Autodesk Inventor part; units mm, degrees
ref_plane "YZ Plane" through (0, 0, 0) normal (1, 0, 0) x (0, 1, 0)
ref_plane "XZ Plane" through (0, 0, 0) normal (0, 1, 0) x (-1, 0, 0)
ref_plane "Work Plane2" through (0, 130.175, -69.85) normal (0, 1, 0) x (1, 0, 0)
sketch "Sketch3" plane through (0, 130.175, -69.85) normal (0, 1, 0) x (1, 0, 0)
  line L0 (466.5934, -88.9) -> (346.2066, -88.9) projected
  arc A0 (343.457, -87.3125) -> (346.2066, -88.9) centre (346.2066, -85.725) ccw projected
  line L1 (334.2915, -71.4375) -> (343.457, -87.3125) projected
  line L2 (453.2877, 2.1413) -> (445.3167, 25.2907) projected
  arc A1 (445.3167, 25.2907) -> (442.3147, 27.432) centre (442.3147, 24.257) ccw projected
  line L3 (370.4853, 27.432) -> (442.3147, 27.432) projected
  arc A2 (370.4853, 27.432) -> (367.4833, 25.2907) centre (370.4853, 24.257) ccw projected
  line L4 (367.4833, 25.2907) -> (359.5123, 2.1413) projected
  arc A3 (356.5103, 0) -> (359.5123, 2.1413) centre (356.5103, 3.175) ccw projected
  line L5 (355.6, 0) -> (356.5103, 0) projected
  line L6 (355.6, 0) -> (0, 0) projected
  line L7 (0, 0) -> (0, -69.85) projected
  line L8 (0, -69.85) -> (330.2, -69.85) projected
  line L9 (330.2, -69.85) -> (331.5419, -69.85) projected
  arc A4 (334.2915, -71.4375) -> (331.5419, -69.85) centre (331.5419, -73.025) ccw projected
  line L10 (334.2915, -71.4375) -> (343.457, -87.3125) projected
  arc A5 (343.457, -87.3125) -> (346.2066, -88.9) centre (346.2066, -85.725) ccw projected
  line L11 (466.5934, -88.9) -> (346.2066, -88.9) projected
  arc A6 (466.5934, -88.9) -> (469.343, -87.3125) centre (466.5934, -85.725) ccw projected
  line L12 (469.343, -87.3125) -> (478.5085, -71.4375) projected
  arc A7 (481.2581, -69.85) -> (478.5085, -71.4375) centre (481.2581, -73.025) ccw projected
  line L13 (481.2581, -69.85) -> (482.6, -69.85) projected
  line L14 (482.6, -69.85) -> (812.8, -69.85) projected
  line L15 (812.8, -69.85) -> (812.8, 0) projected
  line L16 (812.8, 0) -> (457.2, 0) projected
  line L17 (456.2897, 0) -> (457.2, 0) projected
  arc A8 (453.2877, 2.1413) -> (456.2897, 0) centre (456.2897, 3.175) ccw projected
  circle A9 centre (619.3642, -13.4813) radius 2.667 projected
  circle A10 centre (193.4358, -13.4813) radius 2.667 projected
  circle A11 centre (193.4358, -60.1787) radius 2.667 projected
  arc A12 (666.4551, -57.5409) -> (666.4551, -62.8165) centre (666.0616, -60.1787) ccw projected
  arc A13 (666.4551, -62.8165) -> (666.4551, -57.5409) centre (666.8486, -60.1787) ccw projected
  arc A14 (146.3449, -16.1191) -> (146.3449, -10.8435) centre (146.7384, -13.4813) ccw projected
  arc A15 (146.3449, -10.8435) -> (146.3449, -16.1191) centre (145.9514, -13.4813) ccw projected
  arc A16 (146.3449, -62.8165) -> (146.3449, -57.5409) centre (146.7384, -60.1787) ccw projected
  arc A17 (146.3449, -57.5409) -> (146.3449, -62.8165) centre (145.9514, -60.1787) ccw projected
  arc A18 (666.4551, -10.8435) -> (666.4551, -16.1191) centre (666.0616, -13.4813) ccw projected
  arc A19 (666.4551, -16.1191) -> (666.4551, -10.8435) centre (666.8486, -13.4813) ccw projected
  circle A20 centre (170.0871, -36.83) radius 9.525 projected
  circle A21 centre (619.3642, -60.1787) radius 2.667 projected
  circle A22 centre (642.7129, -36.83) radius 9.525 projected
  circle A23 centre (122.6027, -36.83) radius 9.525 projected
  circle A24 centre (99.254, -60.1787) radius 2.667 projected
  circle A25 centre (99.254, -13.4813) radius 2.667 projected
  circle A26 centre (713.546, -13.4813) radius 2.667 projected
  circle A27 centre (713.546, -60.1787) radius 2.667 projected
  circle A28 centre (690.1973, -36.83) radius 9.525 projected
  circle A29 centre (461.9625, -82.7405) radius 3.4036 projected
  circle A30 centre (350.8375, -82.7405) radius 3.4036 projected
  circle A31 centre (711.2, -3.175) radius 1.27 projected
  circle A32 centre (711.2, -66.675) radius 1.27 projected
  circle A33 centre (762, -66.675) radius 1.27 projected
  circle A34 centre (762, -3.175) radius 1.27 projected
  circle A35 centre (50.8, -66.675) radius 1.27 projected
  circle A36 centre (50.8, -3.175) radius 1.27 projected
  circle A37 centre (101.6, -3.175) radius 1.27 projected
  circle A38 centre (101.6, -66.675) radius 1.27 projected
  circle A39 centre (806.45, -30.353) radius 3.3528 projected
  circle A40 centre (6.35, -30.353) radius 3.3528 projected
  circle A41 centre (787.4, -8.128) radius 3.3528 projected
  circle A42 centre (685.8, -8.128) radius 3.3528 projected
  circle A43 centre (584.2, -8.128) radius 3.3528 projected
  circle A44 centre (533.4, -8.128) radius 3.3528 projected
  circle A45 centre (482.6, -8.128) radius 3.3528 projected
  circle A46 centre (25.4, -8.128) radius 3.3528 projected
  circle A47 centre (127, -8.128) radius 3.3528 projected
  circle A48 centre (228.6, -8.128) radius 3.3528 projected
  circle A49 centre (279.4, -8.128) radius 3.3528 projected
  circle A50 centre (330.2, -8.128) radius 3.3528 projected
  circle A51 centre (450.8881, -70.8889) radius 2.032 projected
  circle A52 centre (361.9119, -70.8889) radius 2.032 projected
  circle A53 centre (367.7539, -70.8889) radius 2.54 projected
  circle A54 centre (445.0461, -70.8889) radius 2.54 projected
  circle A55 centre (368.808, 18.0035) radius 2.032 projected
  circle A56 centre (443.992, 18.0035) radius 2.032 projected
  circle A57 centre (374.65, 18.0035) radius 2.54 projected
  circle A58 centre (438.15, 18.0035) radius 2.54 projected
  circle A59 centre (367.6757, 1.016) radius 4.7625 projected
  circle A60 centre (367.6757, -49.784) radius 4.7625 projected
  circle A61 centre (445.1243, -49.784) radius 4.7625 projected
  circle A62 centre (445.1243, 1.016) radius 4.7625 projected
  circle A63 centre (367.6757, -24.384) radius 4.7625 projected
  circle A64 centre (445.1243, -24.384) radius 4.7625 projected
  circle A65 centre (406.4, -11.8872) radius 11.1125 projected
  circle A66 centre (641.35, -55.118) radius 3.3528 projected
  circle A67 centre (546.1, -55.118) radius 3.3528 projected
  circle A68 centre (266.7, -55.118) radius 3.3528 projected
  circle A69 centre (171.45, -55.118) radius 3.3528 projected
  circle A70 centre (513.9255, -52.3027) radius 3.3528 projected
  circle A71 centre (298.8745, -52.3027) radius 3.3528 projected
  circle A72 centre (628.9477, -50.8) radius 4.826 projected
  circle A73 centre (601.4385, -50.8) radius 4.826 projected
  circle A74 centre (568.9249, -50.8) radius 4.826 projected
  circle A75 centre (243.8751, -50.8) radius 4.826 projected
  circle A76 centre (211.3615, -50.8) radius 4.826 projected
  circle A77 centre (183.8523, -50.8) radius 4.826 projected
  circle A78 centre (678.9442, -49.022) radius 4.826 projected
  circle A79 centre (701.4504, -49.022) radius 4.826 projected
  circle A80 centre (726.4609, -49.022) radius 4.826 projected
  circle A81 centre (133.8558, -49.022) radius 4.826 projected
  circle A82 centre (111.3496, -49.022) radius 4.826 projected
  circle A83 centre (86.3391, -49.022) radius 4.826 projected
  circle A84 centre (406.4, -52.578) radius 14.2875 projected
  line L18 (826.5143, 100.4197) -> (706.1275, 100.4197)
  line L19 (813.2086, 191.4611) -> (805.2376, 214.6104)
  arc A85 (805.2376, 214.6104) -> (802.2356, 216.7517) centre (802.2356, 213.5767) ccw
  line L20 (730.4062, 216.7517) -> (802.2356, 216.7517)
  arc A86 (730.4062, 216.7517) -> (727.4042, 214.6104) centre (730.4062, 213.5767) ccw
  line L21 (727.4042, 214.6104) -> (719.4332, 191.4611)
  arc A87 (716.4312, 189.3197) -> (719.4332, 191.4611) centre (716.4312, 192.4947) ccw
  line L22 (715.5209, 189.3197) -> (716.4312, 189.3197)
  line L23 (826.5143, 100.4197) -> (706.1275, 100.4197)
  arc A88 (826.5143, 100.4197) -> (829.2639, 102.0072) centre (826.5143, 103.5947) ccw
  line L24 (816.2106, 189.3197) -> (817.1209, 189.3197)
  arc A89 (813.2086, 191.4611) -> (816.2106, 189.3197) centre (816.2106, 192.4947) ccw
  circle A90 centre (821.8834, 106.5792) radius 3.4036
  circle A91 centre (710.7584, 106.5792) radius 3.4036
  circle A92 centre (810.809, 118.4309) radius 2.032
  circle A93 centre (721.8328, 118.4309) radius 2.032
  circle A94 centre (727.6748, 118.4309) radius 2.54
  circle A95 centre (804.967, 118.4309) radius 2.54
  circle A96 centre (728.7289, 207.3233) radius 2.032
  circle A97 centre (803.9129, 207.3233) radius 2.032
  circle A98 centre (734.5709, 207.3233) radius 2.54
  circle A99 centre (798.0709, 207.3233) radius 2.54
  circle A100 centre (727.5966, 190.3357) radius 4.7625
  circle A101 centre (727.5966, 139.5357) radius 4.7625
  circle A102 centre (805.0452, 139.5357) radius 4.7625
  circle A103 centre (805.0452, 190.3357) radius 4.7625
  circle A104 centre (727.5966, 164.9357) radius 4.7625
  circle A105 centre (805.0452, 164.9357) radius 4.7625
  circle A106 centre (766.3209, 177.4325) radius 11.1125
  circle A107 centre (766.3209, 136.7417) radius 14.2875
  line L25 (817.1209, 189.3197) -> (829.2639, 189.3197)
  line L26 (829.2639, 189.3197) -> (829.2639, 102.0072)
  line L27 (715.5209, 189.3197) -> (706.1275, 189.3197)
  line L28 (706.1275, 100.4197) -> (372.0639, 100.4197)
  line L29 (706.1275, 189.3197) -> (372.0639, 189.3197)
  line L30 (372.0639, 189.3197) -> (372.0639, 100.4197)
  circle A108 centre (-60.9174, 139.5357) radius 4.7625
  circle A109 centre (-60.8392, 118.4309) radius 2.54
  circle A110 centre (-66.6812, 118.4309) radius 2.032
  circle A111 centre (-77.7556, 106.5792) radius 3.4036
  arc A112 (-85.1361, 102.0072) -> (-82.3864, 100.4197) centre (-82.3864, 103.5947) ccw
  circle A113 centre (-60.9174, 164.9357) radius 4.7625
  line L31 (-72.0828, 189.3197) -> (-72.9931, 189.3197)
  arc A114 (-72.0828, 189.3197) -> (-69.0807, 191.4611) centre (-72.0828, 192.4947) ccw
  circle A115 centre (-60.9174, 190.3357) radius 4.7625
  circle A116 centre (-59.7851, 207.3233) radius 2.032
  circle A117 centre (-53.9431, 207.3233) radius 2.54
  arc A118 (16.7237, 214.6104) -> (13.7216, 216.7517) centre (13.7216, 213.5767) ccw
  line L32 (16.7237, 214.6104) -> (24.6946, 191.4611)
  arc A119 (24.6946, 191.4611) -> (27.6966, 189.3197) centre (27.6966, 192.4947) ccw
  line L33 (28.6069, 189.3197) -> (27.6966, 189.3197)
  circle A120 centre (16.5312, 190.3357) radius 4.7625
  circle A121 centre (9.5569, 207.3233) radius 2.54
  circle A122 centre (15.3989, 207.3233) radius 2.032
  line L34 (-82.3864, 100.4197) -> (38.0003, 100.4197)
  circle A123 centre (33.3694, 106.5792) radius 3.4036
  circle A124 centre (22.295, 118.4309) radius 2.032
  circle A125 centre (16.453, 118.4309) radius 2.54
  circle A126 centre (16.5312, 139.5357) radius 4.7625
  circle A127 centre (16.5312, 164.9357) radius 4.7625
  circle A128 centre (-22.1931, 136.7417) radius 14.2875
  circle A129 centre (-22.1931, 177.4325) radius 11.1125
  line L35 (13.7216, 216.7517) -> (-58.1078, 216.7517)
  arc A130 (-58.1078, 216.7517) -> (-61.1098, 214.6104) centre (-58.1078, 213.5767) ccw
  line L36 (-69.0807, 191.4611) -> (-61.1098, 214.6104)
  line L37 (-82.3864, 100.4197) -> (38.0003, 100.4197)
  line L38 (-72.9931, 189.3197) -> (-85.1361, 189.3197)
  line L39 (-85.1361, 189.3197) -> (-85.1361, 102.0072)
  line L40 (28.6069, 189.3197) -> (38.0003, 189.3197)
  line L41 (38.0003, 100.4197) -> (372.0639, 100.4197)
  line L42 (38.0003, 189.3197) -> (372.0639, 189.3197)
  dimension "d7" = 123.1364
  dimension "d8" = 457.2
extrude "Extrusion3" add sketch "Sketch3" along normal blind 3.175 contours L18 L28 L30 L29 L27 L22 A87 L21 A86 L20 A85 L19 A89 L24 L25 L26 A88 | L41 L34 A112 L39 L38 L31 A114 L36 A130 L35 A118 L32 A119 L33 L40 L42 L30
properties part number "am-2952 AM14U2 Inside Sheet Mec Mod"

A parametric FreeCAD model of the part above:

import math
import FreeCAD as App
import Part
import Sketcher

V = App.Vector
Q = App.Units.Quantity

doc = App.newDocument("Part")
params = doc.addObject("Spreadsheet::Sheet", "Params")
for row, (alias, value) in enumerate([
    ("sketch1_diameter", "0.2 in"),
    ("sketch1_diameter2", "0.16 in"),
    ("sketch1_diameter3", "0.268 in"),
    ("sketch1_diameter4", "0.375 in"),
    ("sketch1_diameter5", "1.125 in"),
    ("pad1_length", "0.125 in"),
], start=1):
    params.set(f"A{row}", alias)
    params.set(f"B{row}", "=" + value)
    params.setAlias(f"B{row}", alias)

body = doc.addObject("PartDesign::Body", "Body")

sketch1 = body.newObject("Sketcher::SketchObject", "Sketch")
sketch1.AttachmentSupport = (doc.getObject("XZ_Plane"), [""])
sketch1.MapMode = "FlatFace"
sketch1.AttachmentOffset = App.Placement(V(0, 0, -5.125 * 25.4), App.Rotation())
sketch1.addGeometry([
    Part.ArcOfCircle(Part.Circle(V(826.5143, -173.4447, 0), V(0, 0, 1), 3.175), math.radians(30.000277), math.radians(90)),
    Part.LineSegment(V(829.2639, -171.8572, 0), V(829.2639, -259.1697, 0)),
    Part.LineSegment(V(829.2639, -259.1697, 0), V(816.2106, -259.1697, 0)),
    Part.ArcOfCircle(Part.Circle(V(816.2106, -262.3447, 0), V(0, 0, 1), 3.174954), math.radians(90), math.radians(161.00122)),
    Part.LineSegment(V(813.2086, -261.3111, 0), V(805.2376, -284.4604, 0)),
    Part.ArcOfCircle(Part.Circle(V(802.2356, -283.4267, 0), V(0, 0, 1), 3.174987), math.radians(-90), math.radians(-19.000486)),
    Part.LineSegment(V(802.2356, -286.6017, 0), V(730.4062, -286.6017, 0)),
    Part.ArcOfCircle(Part.Circle(V(730.4062, -283.4267, 0), V(0, 0, 1), 3.175), math.radians(-160.999514), math.radians(-90)),
    Part.LineSegment(V(727.4042, -284.4604, 0), V(719.4332, -261.3111, 0)),
    Part.ArcOfCircle(Part.Circle(V(716.4312, -262.3447, 0), V(0, 0, 1), 3.175), math.radians(18.99878), math.radians(90)),
    Part.LineSegment(V(716.4312, -259.1697, 0), V(27.6966, -259.1697, 0)),
    Part.ArcOfCircle(Part.Circle(V(27.6966, -262.3447, 0), V(0, 0, 1), 3.174954), math.radians(90), math.radians(161.00122)),
    Part.LineSegment(V(24.6946, -261.3111, 0), V(16.7237, -284.4604, 0)),
    Part.ArcOfCircle(Part.Circle(V(13.7216, -283.4267, 0), V(0, 0, 1), 3.175081), math.radians(-90), math.radians(-18.999899)),
    Part.LineSegment(V(13.7216, -286.6017, 0), V(-58.1078, -286.6017, 0)),
    Part.ArcOfCircle(Part.Circle(V(-58.1078, -283.4267, 0), V(0, 0, 1), 3.175), math.radians(-160.999514), math.radians(-90)),
    Part.LineSegment(V(-61.1098, -284.4604, 0), V(-69.0807, -261.3111, 0)),
    Part.ArcOfCircle(Part.Circle(V(-72.0828, -262.3447, 0), V(0, 0, 1), 3.175), math.radians(18.998193), math.radians(90)),
    Part.LineSegment(V(-72.0828, -259.1697, 0), V(-85.1361, -259.1697, 0)),
    Part.LineSegment(V(-85.1361, -259.1697, 0), V(-85.1361, -171.8572, 0)),
    Part.ArcOfCircle(Part.Circle(V(-82.3864, -173.4447, 0), V(0, 0, 1), 3.17506), math.radians(90), math.radians(150.000626)),
    Part.LineSegment(V(-82.3864, -170.2697, 0), V(826.5143, -170.2697, 0)),
    Part.Circle(V(710.7584, -176.4292, 0), V(0, 0, 1), 3.4036),
    Part.Circle(V(721.8328, -188.2809, 0), V(0, 0, 1), 2.032),
    Part.Circle(V(727.6748, -188.2809, 0), V(0, 0, 1), 2.54),
    Part.Circle(V(821.8834, -176.4292, 0), V(0, 0, 1), 3.4036),
    Part.Circle(V(804.967, -188.2809, 0), V(0, 0, 1), 2.54),
    Part.Circle(V(810.809, -188.2809, 0), V(0, 0, 1), 2.032),
    Part.Circle(V(727.5966, -209.3857, 0), V(0, 0, 1), 4.7625),
    Part.Circle(V(766.3209, -206.5917, 0), V(0, 0, 1), 14.2875),
    Part.Circle(V(805.0452, -209.3857, 0), V(0, 0, 1), 4.7625),
    Part.Circle(V(727.5966, -234.7857, 0), V(0, 0, 1), 4.7625),
    Part.Circle(V(766.3209, -247.2825, 0), V(0, 0, 1), 11.1125),
    Part.Circle(V(805.0452, -234.7857, 0), V(0, 0, 1), 4.7625),
    Part.Circle(V(727.5966, -260.1857, 0), V(0, 0, 1), 4.7625),
    Part.Circle(V(805.0452, -260.1857, 0), V(0, 0, 1), 4.7625),
    Part.Circle(V(728.7289, -277.1733, 0), V(0, 0, 1), 2.032),
    Part.Circle(V(734.5709, -277.1733, 0), V(0, 0, 1), 2.54),
    Part.Circle(V(798.0709, -277.1733, 0), V(0, 0, 1), 2.54),
    Part.Circle(V(803.9129, -277.1733, 0), V(0, 0, 1), 2.032),
    Part.Circle(V(15.3989, -277.1733, 0), V(0, 0, 1), 2.032),
    Part.Circle(V(-77.7556, -176.4292, 0), V(0, 0, 1), 3.4036),
    Part.Circle(V(-66.6812, -188.2809, 0), V(0, 0, 1), 2.032),
    Part.Circle(V(-60.8392, -188.2809, 0), V(0, 0, 1), 2.54),
    Part.Circle(V(16.453, -188.2809, 0), V(0, 0, 1), 2.54),
    Part.Circle(V(22.295, -188.2809, 0), V(0, 0, 1), 2.032),
    Part.Circle(V(-60.9174, -209.3857, 0), V(0, 0, 1), 4.7625),
    Part.Circle(V(-22.1931, -206.5917, 0), V(0, 0, 1), 14.2875),
    Part.Circle(V(16.5312, -209.3857, 0), V(0, 0, 1), 4.7625),
    Part.Circle(V(33.3694, -176.4292, 0), V(0, 0, 1), 3.4036),
    Part.Circle(V(-60.9174, -234.7857, 0), V(0, 0, 1), 4.7625),
    Part.Circle(V(16.5312, -234.7857, 0), V(0, 0, 1), 4.7625),
    Part.Circle(V(-22.1931, -247.2825, 0), V(0, 0, 1), 11.1125),
    Part.Circle(V(-60.9174, -260.1857, 0), V(0, 0, 1), 4.7625),
    Part.Circle(V(16.5312, -260.1857, 0), V(0, 0, 1), 4.7625),
    Part.Circle(V(-59.7851, -277.1733, 0), V(0, 0, 1), 2.032),
    Part.Circle(V(-53.9431, -277.1733, 0), V(0, 0, 1), 2.54),
    Part.Circle(V(9.5569, -277.1733, 0), V(0, 0, 1), 2.54),
], False)
sketch1.addConstraint([
    Sketcher.Constraint("Coincident", 0, 1, 1, 1),
    Sketcher.Constraint("Coincident", 1, 2, 2, 1),
    Sketcher.Constraint("Tangent", 2, 2, 3, 1),
    Sketcher.Constraint("Tangent", 3, 2, 4, 1),
    Sketcher.Constraint("Tangent", 4, 2, 5, 2),
    Sketcher.Constraint("Tangent", 5, 1, 6, 1),
    Sketcher.Constraint("Tangent", 6, 2, 7, 2),
    Sketcher.Constraint("Tangent", 7, 1, 8, 1),
    Sketcher.Constraint("Tangent", 8, 2, 9, 1),
    Sketcher.Constraint("Tangent", 9, 2, 10, 1),
    Sketcher.Constraint("Tangent", 10, 2, 11, 1),
    Sketcher.Constraint("Tangent", 11, 2, 12, 1),
    Sketcher.Constraint("Tangent", 12, 2, 13, 2),
    Sketcher.Constraint("Tangent", 13, 1, 14, 1),
    Sketcher.Constraint("Tangent", 14, 2, 15, 2),
    Sketcher.Constraint("Tangent", 15, 1, 16, 1),
    Sketcher.Constraint("Tangent", 16, 2, 17, 1),
    Sketcher.Constraint("Tangent", 17, 2, 18, 1),
    Sketcher.Constraint("Coincident", 18, 2, 19, 1),
    Sketcher.Constraint("Coincident", 19, 2, 20, 2),
    Sketcher.Constraint("Tangent", 20, 1, 21, 1),
    Sketcher.Constraint("Tangent", 21, 2, 0, 2),
    Sketcher.Constraint("Vertical", 1),
    Sketcher.Constraint("Horizontal", 2),
    Sketcher.Constraint("Horizontal", 6),
    Sketcher.Constraint("Horizontal", 10),
    Sketcher.Constraint("Horizontal", 14),
    Sketcher.Constraint("Horizontal", 18),
    Sketcher.Constraint("Vertical", 19),
    Sketcher.Constraint("Horizontal", 21),
    Sketcher.Constraint("Equal", 0, 3),
    Sketcher.Constraint("Equal", 3, 5),
    Sketcher.Constraint("Equal", 5, 7),
    Sketcher.Constraint("Equal", 7, 9),
    Sketcher.Constraint("Equal", 9, 11),
    Sketcher.Constraint("Equal", 11, 13),
    Sketcher.Constraint("Equal", 13, 15),
    Sketcher.Constraint("Equal", 15, 17),
    Sketcher.Constraint("Equal", 17, 20),
    Sketcher.Constraint("Equal", 22, 25),
    Sketcher.Constraint("Equal", 24, 26),
    Sketcher.Constraint("Equal", 23, 27),
    Sketcher.Constraint("Equal", 28, 30),
    Sketcher.Constraint("Equal", 30, 31),
    Sketcher.Constraint("Equal", 31, 33),
    Sketcher.Constraint("Equal", 33, 34),
    Sketcher.Constraint("Equal", 34, 35),
    Sketcher.Constraint("Equal", 27, 36),
    Sketcher.Constraint("Equal", 26, 37),
    Sketcher.Constraint("Equal", 37, 38),
    Sketcher.Constraint("Equal", 36, 39),
    Sketcher.Constraint("Equal", 39, 40),
    Sketcher.Constraint("Equal", 25, 41),
    Sketcher.Constraint("Equal", 40, 42),
    Sketcher.Constraint("Equal", 38, 43),
    Sketcher.Constraint("Equal", 43, 44),
    Sketcher.Constraint("Equal", 42, 45),
    Sketcher.Constraint("Equal", 35, 46),
    Sketcher.Constraint("Equal", 29, 47),
    Sketcher.Constraint("Equal", 46, 48),
    Sketcher.Constraint("Equal", 41, 49),
    Sketcher.Constraint("Equal", 48, 50),
    Sketcher.Constraint("Equal", 50, 51),
    Sketcher.Constraint("Equal", 32, 52),
    Sketcher.Constraint("Equal", 51, 53),
    Sketcher.Constraint("Equal", 53, 54),
    Sketcher.Constraint("Equal", 45, 55),
    Sketcher.Constraint("Equal", 44, 56),
    Sketcher.Constraint("Equal", 56, 57),
    Sketcher.Constraint("Parallel", 4, 12),
    Sketcher.Constraint("Parallel", 8, 16),
    Sketcher.Constraint("Horizontal", 3, 3, 9, 3),
    Sketcher.Constraint("Horizontal", 7, 3, 13, 3),
    Sketcher.Constraint("Horizontal", 11, 3, 17, 3),
    Sketcher.Constraint("Horizontal", 23, 3, 24, 3),
    Sketcher.Constraint("Horizontal", 22, 3, 25, 3),
    Sketcher.Constraint("Horizontal", 24, 3, 26, 3),
    Sketcher.Constraint("Horizontal", 26, 3, 27, 3),
    Sketcher.Constraint("Horizontal", 28, 3, 30, 3),
    Sketcher.Constraint("Horizontal", 31, 3, 33, 3),
    Sketcher.Constraint("Horizontal", 34, 3, 35, 3),
    Sketcher.Constraint("Horizontal", 36, 3, 37, 3),
    Sketcher.Constraint("Horizontal", 37, 3, 38, 3),
    Sketcher.Constraint("Horizontal", 38, 3, 39, 3),
    Sketcher.Constraint("Horizontal", 39, 3, 40, 3),
    Sketcher.Constraint("Horizontal", 25, 3, 41, 3),
    Sketcher.Constraint("Horizontal", 27, 3, 42, 3),
    Sketcher.Constraint("Horizontal", 42, 3, 43, 3),
    Sketcher.Constraint("Horizontal", 43, 3, 44, 3),
    Sketcher.Constraint("Horizontal", 44, 3, 45, 3),
    Sketcher.Constraint("Horizontal", 30, 3, 46, 3),
    Sketcher.Constraint("Horizontal", 29, 3, 47, 3),
    Sketcher.Constraint("Horizontal", 46, 3, 48, 3),
    Sketcher.Constraint("Horizontal", 41, 3, 49, 3),
    Sketcher.Constraint("Horizontal", 33, 3, 50, 3),
    Sketcher.Constraint("Horizontal", 50, 3, 51, 3),
    Sketcher.Constraint("Horizontal", 32, 3, 52, 3),
    Sketcher.Constraint("Horizontal", 35, 3, 53, 3),
    Sketcher.Constraint("Horizontal", 53, 3, 54, 3),
    Sketcher.Constraint("Horizontal", 40, 3, 55, 3),
    Sketcher.Constraint("Horizontal", 55, 3, 56, 3),
    Sketcher.Constraint("Horizontal", 56, 3, 57, 3),
    Sketcher.Constraint("Horizontal", 4, 2, 7, 1),
    Sketcher.Constraint("Horizontal", 0, 1, 19, 2),
    Sketcher.Constraint("Vertical", 28, 3, 31, 3),
    Sketcher.Constraint("Vertical", 29, 3, 32, 3),
    Sketcher.Constraint("Vertical", 30, 3, 33, 3),
    Sketcher.Constraint("Vertical", 31, 3, 34, 3),
    Sketcher.Constraint("Vertical", 33, 3, 35, 3),
    Sketcher.Constraint("Vertical", 46, 3, 50, 3),
    Sketcher.Constraint("Vertical", 48, 3, 51, 3),
    Sketcher.Constraint("Vertical", 47, 3, 52, 3),
    Sketcher.Constraint("Vertical", 50, 3, 53, 3),
    Sketcher.Constraint("Vertical", 51, 3, 54, 3),
    Sketcher.Constraint("Equal", 6, 14),
    Sketcher.Constraint("Equal", 2, 18),
    Sketcher.Constraint("Diameter", 24, Q("0.2 in")),
    Sketcher.Constraint("Diameter", 23, Q("0.16 in")),
    Sketcher.Constraint("Diameter", 22, Q("0.268 in")),
    Sketcher.Constraint("Diameter", 28, Q("0.375 in")),
    Sketcher.Constraint("Diameter", 29, Q("1.125 in")),
    Sketcher.Constraint("Diameter", 32, Q("0.875 in")),
    Sketcher.Constraint("Angle", 4, Q("-109.0001 deg")),
    Sketcher.Constraint("Radius", 0, Q("0.125 in")),
    Sketcher.Constraint("DistanceY", 1, 2, 1, 1, Q("3.4375 in")),
    Sketcher.Constraint("DistanceX", 2, 2, 2, 1, Q("0.5139 in")),
    Sketcher.Constraint("DistanceX", 21, 1, 21, 2, Q("35.7835 in")),
    Sketcher.Constraint("Distance", 4, Q("0.9639 in")),
    Sketcher.Constraint("DistanceX", 6, 2, 6, 1, 71.8294),
    Sketcher.Constraint("DistanceX", 10, 2, 10, 1, 688.7346),
    Sketcher.Constraint("DistanceX", 15, 3, -1, 1, Q("2.2877 in")),
    Sketcher.Constraint("DistanceX", -1, 1, 30, 3, Q("31.6947 in")),
    Sketcher.Constraint("DistanceY", 0, 3, -1, 1, 173.4447),
    Sketcher.Constraint("DistanceX", -1, 1, 22, 3, 710.7584),
    Sketcher.Constraint("DistanceY", 22, 3, -1, 1, 176.4292),
    Sketcher.Constraint("DistanceX", -1, 1, 23, 3, 721.8328),
    Sketcher.Constraint("DistanceY", 23, 3, -1, 1, 188.281),
    Sketcher.Constraint("DistanceX", -1, 1, 24, 3, 727.6748),
    Sketcher.Constraint("DistanceX", -1, 1, 25, 3, 821.8834),
    Sketcher.Constraint("DistanceX", -1, 1, 26, 3, 804.967),
    Sketcher.Constraint("DistanceX", -1, 1, 27, 3, 810.809),
    Sketcher.Constraint("DistanceX", -1, 1, 28, 3, 727.5966),
    Sketcher.Constraint("DistanceY", 28, 3, -1, 1, 209.3857),
    Sketcher.Constraint("DistanceX", -1, 1, 29, 3, 766.321),
    Sketcher.Constraint("DistanceY", 29, 3, -1, 1, 206.5917),
    Sketcher.Constraint("DistanceY", 31, 3, -1, 1, 234.7857),
    Sketcher.Constraint("DistanceY", 32, 3, -1, 1, 247.2825),
    Sketcher.Constraint("DistanceY", 34, 3, -1, 1, 260.1857),
    Sketcher.Constraint("DistanceX", -1, 1, 36, 3, 728.729),
    Sketcher.Constraint("DistanceY", 36, 3, -1, 1, 277.1733),
    Sketcher.Constraint("DistanceX", -1, 1, 37, 3, 734.571),
    Sketcher.Constraint("DistanceX", -1, 1, 38, 3, 798.071),
    Sketcher.Constraint("DistanceX", -1, 1, 39, 3, 803.913),
    Sketcher.Constraint("DistanceX", -1, 1, 40, 3, 15.399),
    Sketcher.Constraint("DistanceX", 41, 3, -1, 1, 77.7556),
    Sketcher.Constraint("DistanceX", 42, 3, -1, 1, 66.6812),
    Sketcher.Constraint("DistanceX", 43, 3, -1, 1, 60.8392),
    Sketcher.Constraint("DistanceX", -1, 1, 44, 3, 16.453),
    Sketcher.Constraint("DistanceX", -1, 1, 45, 3, 22.295),
    Sketcher.Constraint("DistanceX", 46, 3, -1, 1, 60.9174),
    Sketcher.Constraint("DistanceX", 47, 3, -1, 1, 22.193),
    Sketcher.Constraint("DistanceX", -1, 1, 48, 3, 16.5312),
    Sketcher.Constraint("DistanceX", -1, 1, 49, 3, 33.3694),
    Sketcher.Constraint("DistanceX", 55, 3, -1, 1, 59.785),
    Sketcher.Constraint("DistanceX", 56, 3, -1, 1, 53.943),
    Sketcher.Constraint("DistanceX", -1, 1, 57, 3, 9.557),
])
sketch1.setExpression("Constraints[116]", "Params.sketch1_diameter")
sketch1.setExpression("Constraints[117]", "Params.sketch1_diameter2")
sketch1.setExpression("Constraints[118]", "Params.sketch1_diameter3")
sketch1.setExpression("Constraints[119]", "Params.sketch1_diameter4")
sketch1.setExpression("Constraints[120]", "Params.sketch1_diameter5")
pad1 = body.newObject("PartDesign::Pad", "Pad")
pad1.Profile = sketch1
pad1.setExpression("Length", "Params.pad1_length")
pad1.Reversed = True

doc.recompute()
